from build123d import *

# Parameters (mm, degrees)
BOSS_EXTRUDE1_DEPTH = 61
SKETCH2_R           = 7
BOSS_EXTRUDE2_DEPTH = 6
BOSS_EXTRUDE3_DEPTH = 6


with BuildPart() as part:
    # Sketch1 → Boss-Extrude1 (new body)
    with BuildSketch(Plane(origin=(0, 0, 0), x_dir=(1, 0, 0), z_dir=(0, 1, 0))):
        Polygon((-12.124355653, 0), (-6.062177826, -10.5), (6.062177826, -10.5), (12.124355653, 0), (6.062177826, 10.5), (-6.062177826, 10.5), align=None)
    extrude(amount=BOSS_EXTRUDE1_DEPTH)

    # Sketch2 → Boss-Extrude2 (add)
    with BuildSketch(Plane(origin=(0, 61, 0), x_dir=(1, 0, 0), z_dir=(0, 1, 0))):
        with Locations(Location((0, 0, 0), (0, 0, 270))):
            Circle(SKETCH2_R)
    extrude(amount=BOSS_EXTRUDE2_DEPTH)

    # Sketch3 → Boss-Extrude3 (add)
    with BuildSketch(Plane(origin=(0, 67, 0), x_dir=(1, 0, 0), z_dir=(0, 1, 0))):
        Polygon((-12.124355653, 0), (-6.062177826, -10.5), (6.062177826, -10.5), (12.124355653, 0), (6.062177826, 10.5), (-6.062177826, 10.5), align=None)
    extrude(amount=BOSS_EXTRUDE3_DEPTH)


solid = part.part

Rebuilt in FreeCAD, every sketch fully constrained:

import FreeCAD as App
import Part
import Sketcher
Q = App.Units.Quantity


def add_polygon(sketch, points):
    """Adds a closed chain of lines whose ends are joined by coincident constraints."""
    first, n = sketch.GeometryCount, len(points)
    for a, b in zip(points, points[1:] + points[:1]):
        sketch.addGeometry(Part.LineSegment(App.Vector(*a, 0), App.Vector(*b, 0)), False)
    for i in range(n):
        sketch.addConstraint(Sketcher.Constraint("Coincident", first + i, 2, first + (i + 1) % n, 1))

doc = App.newDocument("Part")
body = doc.addObject("PartDesign::Body", "Body")

# Sketch on XZ plane
sketch1 = doc.addObject("Sketcher::SketchObject", "Sketch")
body.addObject(sketch1)
sketch1.AttachmentSupport = (doc.XZ_Plane, [""])
sketch1.MapMode = "FlatFace"
add_polygon(sketch1, [(-12, 0), (-6, 10), (6, 10), (12, 0), (6, -10), (-6, -10)])  # lines 0-5
sketch1.addConstraint([
    Sketcher.Constraint("Horizontal", 1),
    Sketcher.Constraint("Horizontal", 4),
    Sketcher.Constraint("Symmetric", 0, 2, 3, 2, -1, 1),
    Sketcher.Constraint("Symmetric", 2, 2, 5, 2, -1, 1),
    Sketcher.Constraint("PointOnObject", 2, 2, -1),
    Sketcher.Constraint("Parallel", 2, 5),
    Sketcher.Constraint("Vertical", 1, 2, 3, 2),
    Sketcher.Constraint("Angle", 0, Q("60 deg")),
    Sketcher.Constraint("DistanceY", 3, 2, 1, 2, Q("21 mm")),
    Sketcher.Constraint("DistanceX", 1, 1, 1, 2, Q("12.124356 mm")),
])
pad1 = doc.addObject("PartDesign::Pad", "Pad")
body.addObject(pad1)
pad1.Profile = sketch1
pad1.Length = 61
pad1.Reversed = True

# Sketch on XZ plane
sketch2 = doc.addObject("Sketcher::SketchObject", "Sketch001")
body.addObject(sketch2)
sketch2.AttachmentSupport = (doc.XZ_Plane, [""])
sketch2.MapMode = "FlatFace"
sketch2.AttachmentOffset = App.Placement(App.Vector(0, 0, -61), App.Rotation())
sketch2.addGeometry(Part.Circle(App.Vector(0, 0, 0), App.Vector(0, 0, 1), 7), False)
sketch2.addConstraint([
    Sketcher.Constraint("Coincident", 0, 3, -1, 1),
    Sketcher.Constraint("Diameter", 0, Q("14 mm")),
])
pad2 = doc.addObject("PartDesign::Pad", "Pad001")
body.addObject(pad2)
pad2.Profile = sketch2
pad2.Length = 6
pad2.Reversed = True

# Sketch on XZ plane
sketch3 = doc.addObject("Sketcher::SketchObject", "Sketch002")
body.addObject(sketch3)
sketch3.AttachmentSupport = (doc.XZ_Plane, [""])
sketch3.MapMode = "FlatFace"
sketch3.AttachmentOffset = App.Placement(App.Vector(0, 0, -67), App.Rotation())
add_polygon(sketch3, [(-12, 0), (-6, 10), (6, 10), (12, 0), (6, -10), (-6, -10)])  # lines 0-5
sketch3.addConstraint([
    Sketcher.Constraint("Horizontal", 1),
    Sketcher.Constraint("Horizontal", 4),
    Sketcher.Constraint("Symmetric", 0, 2, 3, 2, -1, 1),
    Sketcher.Constraint("Symmetric", 2, 2, 5, 2, -1, 1),
    Sketcher.Constraint("PointOnObject", 2, 2, -1),
    Sketcher.Constraint("Parallel", 2, 5),
    Sketcher.Constraint("Vertical", 1, 2, 3, 2),
    Sketcher.Constraint("Angle", 0, Q("60 deg")),
    Sketcher.Constraint("DistanceY", 3, 2, 1, 2, Q("21 mm")),
    Sketcher.Constraint("DistanceX", 1, 1, 1, 2, Q("12.124356 mm")),
])
pad3 = doc.addObject("PartDesign::Pad", "Pad002")
body.addObject(pad3)
pad3.Profile = sketch3
pad3.Length = 6
pad3.Reversed = True

doc.recompute()
